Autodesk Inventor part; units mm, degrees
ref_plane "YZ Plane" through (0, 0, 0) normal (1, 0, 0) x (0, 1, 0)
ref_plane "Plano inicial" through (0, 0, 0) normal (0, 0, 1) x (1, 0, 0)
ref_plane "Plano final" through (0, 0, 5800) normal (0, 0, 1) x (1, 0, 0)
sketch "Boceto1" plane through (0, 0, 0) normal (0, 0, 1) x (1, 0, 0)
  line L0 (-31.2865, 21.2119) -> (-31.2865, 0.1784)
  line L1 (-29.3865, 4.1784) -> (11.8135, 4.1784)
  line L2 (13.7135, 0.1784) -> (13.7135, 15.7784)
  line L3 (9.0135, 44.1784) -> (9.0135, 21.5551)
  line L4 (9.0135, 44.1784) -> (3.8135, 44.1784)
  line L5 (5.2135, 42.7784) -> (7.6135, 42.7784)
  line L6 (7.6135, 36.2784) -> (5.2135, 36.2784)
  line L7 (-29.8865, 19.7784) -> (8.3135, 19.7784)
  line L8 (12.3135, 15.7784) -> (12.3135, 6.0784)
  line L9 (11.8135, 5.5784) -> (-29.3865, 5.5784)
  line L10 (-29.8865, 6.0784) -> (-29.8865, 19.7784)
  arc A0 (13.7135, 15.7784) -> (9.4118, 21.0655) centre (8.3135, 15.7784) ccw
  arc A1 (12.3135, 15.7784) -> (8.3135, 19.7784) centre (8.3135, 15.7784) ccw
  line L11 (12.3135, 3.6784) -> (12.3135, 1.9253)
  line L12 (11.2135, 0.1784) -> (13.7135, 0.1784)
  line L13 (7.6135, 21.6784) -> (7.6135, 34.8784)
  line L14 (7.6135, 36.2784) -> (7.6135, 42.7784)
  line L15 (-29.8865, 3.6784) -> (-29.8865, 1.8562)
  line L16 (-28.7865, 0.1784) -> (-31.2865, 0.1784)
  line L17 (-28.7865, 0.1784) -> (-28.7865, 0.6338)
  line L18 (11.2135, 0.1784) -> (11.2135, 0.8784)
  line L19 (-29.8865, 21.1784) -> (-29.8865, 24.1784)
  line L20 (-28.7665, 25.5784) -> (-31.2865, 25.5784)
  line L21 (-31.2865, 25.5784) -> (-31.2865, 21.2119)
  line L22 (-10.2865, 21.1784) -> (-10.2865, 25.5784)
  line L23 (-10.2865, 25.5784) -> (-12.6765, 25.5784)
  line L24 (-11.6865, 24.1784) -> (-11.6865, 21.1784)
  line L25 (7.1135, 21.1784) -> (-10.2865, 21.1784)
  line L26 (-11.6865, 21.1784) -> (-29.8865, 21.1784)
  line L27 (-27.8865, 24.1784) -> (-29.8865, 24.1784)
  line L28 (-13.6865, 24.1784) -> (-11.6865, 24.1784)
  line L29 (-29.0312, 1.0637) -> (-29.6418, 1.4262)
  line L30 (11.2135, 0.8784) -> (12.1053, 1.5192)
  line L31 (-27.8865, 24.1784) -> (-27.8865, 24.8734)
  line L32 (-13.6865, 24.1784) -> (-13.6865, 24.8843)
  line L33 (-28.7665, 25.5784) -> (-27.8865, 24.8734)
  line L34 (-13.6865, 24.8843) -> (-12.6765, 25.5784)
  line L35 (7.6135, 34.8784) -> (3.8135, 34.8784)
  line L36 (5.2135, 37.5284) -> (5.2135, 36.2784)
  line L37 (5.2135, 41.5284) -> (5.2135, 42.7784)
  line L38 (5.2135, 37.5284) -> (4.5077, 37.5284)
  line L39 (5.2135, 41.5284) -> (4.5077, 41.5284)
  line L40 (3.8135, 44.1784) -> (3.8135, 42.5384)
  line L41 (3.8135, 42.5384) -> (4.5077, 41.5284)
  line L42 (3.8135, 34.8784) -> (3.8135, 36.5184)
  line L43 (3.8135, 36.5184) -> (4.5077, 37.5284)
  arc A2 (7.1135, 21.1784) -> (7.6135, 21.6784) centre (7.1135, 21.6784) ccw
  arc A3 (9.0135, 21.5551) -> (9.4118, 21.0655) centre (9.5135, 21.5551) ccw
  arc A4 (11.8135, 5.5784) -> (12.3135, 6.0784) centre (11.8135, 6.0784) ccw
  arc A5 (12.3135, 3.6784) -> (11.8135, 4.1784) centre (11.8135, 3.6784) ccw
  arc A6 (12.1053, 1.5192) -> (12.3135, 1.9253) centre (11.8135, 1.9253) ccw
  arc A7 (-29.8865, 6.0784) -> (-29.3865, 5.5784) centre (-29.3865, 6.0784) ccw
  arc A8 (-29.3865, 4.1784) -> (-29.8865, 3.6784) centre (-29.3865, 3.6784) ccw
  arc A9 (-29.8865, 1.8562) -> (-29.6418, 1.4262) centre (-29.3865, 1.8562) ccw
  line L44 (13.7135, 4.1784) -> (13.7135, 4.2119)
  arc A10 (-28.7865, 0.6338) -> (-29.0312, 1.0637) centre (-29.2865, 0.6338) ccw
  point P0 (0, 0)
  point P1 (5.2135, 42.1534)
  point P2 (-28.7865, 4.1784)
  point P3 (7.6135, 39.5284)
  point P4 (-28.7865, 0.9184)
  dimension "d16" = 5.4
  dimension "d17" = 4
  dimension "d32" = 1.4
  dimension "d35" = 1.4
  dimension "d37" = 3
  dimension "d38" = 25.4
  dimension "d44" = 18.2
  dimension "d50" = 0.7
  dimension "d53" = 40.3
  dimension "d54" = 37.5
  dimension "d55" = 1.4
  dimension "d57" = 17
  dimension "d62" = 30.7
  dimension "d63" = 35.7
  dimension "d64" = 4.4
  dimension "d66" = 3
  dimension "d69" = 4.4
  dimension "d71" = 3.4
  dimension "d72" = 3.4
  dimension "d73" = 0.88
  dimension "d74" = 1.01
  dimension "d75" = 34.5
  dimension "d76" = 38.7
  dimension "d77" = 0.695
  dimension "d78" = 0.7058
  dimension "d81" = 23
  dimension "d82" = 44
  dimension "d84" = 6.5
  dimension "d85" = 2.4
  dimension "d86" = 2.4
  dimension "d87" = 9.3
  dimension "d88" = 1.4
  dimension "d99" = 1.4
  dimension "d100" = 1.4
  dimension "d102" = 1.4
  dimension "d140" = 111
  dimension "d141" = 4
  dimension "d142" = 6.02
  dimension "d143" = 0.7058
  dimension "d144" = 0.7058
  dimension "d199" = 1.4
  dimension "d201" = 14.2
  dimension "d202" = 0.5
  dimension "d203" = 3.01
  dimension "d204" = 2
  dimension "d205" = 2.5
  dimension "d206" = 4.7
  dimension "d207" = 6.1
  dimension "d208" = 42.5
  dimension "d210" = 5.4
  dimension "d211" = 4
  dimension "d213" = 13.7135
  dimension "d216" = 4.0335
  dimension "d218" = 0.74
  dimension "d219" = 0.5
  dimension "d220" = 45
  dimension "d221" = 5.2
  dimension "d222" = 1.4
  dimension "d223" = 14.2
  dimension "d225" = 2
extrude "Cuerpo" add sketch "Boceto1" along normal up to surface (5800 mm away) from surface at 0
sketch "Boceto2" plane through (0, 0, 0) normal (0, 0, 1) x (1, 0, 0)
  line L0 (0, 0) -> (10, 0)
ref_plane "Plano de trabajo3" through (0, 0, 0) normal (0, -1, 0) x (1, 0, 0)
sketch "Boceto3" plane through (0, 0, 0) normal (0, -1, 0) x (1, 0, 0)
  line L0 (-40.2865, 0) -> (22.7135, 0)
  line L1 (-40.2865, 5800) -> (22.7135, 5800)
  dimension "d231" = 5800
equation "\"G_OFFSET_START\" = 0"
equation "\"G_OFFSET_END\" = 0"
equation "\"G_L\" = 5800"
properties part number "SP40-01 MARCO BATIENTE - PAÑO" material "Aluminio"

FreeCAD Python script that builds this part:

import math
import FreeCAD as App
import Part
import Sketcher
Q = App.Units.Quantity

doc = App.newDocument("Part")
params = doc.addObject("Spreadsheet::Sheet", "Params")
for row, (alias, value) in enumerate([
    ("sketch1_radius", "4 mm"),
    ("sketch1_radius2", "0.5 mm"),
    ("sketch1_radius3", "5.4 mm"),
    ("sketch1_width", "2 mm"),
    ("sketch1_height", "3 mm"),
    ("pad1_length", "5800 mm"),
], start=1):
    params.set(f"A{row}", alias)
    params.set(f"B{row}", "=" + value)
    params.setAlias(f"B{row}", alias)

body = doc.addObject("PartDesign::Body", "Body")

# Sketch on XY plane
sketch1 = body.newObject("Sketcher::SketchObject", "Sketch")
sketch1.AttachmentSupport = (doc.getObject("XY_Plane"), [""])
sketch1.MapMode = "FlatFace"
sketch1.addGeometry([
    Part.LineSegment(App.Vector(-31.2865, 25.5784, 0), App.Vector(-31.2865, 0.1784, 0)),  # 0
    Part.LineSegment(App.Vector(-31.2865, 0.1784, 0), App.Vector(-28.7865, 0.1784, 0)),  # 1
    Part.LineSegment(App.Vector(-28.7865, 0.1784, 0), App.Vector(-28.7865, 0.6338, 0)),  # 2
    Part.ArcOfCircle(Part.Circle(App.Vector(-29.2865, 0.6338, 0), App.Vector(0, 0, 1), 0.5), math.radians(0), math.radians(59.295659)),  # 3
    Part.LineSegment(App.Vector(-29.0312, 1.0637, 0), App.Vector(-29.6418, 1.4262, 0)),  # 4
    Part.ArcOfCircle(Part.Circle(App.Vector(-29.3865, 1.8562, 0), App.Vector(0, 0, 1), 0.5), math.radians(180), math.radians(239.301509)),  # 5
    Part.LineSegment(App.Vector(-29.8865, 1.8562, 0), App.Vector(-29.8865, 3.6784, 0)),  # 6
    Part.ArcOfCircle(Part.Circle(App.Vector(-29.3865, 3.6784, 0), App.Vector(0, 0, 1), 0.5), math.radians(90), math.radians(180)),  # 7
    Part.LineSegment(App.Vector(-29.3865, 4.1784, 0), App.Vector(11.8135, 4.1784, 0)),  # 8
    Part.ArcOfCircle(Part.Circle(App.Vector(11.8135, 3.6784, 0), App.Vector(0, 0, 1), 0.5), math.radians(0), math.radians(90)),  # 9
    Part.LineSegment(App.Vector(12.3135, 3.6784, 0), App.Vector(12.3135, 1.9253, 0)),  # 10
    Part.ArcOfCircle(Part.Circle(App.Vector(11.8135, 1.9253, 0), App.Vector(0, 0, 1), 0.500064), math.radians(-54.301159), math.radians(0)),  # 11
    Part.LineSegment(App.Vector(12.1053, 1.5192, 0), App.Vector(11.2135, 0.8784, 0)),  # 12
    Part.LineSegment(App.Vector(11.2135, 0.8784, 0), App.Vector(11.2135, 0.1784, 0)),  # 13
    Part.LineSegment(App.Vector(11.2135, 0.1784, 0), App.Vector(13.7135, 0.1784, 0)),  # 14
    Part.LineSegment(App.Vector(13.7135, 0.1784, 0), App.Vector(13.7135, 15.7784, 0)),  # 15
    Part.ArcOfCircle(Part.Circle(App.Vector(8.3135, 15.7784, 0), App.Vector(0, 0, 1), 5.4), math.radians(0), math.radians(78.264734)),  # 16
    Part.ArcOfCircle(Part.Circle(App.Vector(9.5135, 21.5551, 0), App.Vector(0, 0, 1), 0.5), math.radians(180), math.radians(258.265363)),  # 17
    Part.LineSegment(App.Vector(9.0135, 21.5551, 0), App.Vector(9.0135, 44.1784, 0)),  # 18
    Part.LineSegment(App.Vector(9.0135, 44.1784, 0), App.Vector(3.8135, 44.1784, 0)),  # 19
    Part.LineSegment(App.Vector(3.8135, 44.1784, 0), App.Vector(3.8135, 42.5384, 0)),  # 20
    Part.LineSegment(App.Vector(3.8135, 42.5384, 0), App.Vector(4.5077, 41.5284, 0)),  # 21
    Part.LineSegment(App.Vector(4.5077, 41.5284, 0), App.Vector(5.2135, 41.5284, 0)),  # 22
    Part.LineSegment(App.Vector(5.2135, 41.5284, 0), App.Vector(5.2135, 42.7784, 0)),  # 23
    Part.LineSegment(App.Vector(5.2135, 42.7784, 0), App.Vector(7.6135, 42.7784, 0)),  # 24
    Part.LineSegment(App.Vector(7.6135, 42.7784, 0), App.Vector(7.6135, 36.2784, 0)),  # 25
    Part.LineSegment(App.Vector(7.6135, 36.2784, 0), App.Vector(5.2135, 36.2784, 0)),  # 26
    Part.LineSegment(App.Vector(5.2135, 36.2784, 0), App.Vector(5.2135, 37.5284, 0)),  # 27
    Part.LineSegment(App.Vector(5.2135, 37.5284, 0), App.Vector(4.5077, 37.5284, 0)),  # 28
    Part.LineSegment(App.Vector(4.5077, 37.5284, 0), App.Vector(3.8135, 36.5184, 0)),  # 29
    Part.LineSegment(App.Vector(3.8135, 36.5184, 0), App.Vector(3.8135, 34.8784, 0)),  # 30
    Part.LineSegment(App.Vector(3.8135, 34.8784, 0), App.Vector(7.6135, 34.8784, 0)),  # 31
    Part.LineSegment(App.Vector(7.6135, 34.8784, 0), App.Vector(7.6135, 21.6784, 0)),  # 32
    Part.ArcOfCircle(Part.Circle(App.Vector(7.1135, 21.6784, 0), App.Vector(0, 0, 1), 0.5), math.radians(-90), math.radians(0)),  # 33
    Part.LineSegment(App.Vector(7.1135, 21.1784, 0), App.Vector(-10.2865, 21.1784, 0)),  # 34
    Part.LineSegment(App.Vector(-10.2865, 21.1784, 0), App.Vector(-10.2865, 25.5784, 0)),  # 35
    Part.LineSegment(App.Vector(-10.2865, 25.5784, 0), App.Vector(-12.6765, 25.5784, 0)),  # 36
    Part.LineSegment(App.Vector(-12.6765, 25.5784, 0), App.Vector(-13.6865, 24.8843, 0)),  # 37
    Part.LineSegment(App.Vector(-13.6865, 24.8843, 0), App.Vector(-13.6865, 24.1784, 0)),  # 38
    Part.LineSegment(App.Vector(-13.6865, 24.1784, 0), App.Vector(-11.6865, 24.1784, 0)),  # 39
    Part.LineSegment(App.Vector(-11.6865, 24.1784, 0), App.Vector(-11.6865, 21.1784, 0)),  # 40
    Part.LineSegment(App.Vector(-11.6865, 21.1784, 0), App.Vector(-29.8865, 21.1784, 0)),  # 41
    Part.LineSegment(App.Vector(-29.8865, 21.1784, 0), App.Vector(-29.8865, 24.1784, 0)),  # 42
    Part.LineSegment(App.Vector(-29.8865, 24.1784, 0), App.Vector(-27.8865, 24.1784, 0)),  # 43
    Part.LineSegment(App.Vector(-27.8865, 24.1784, 0), App.Vector(-27.8865, 24.8734, 0)),  # 44
    Part.LineSegment(App.Vector(-27.8865, 24.8734, 0), App.Vector(-28.7665, 25.5784, 0)),  # 45
    Part.LineSegment(App.Vector(-28.7665, 25.5784, 0), App.Vector(-31.2865, 25.5784, 0)),  # 46
    Part.LineSegment(App.Vector(-29.8865, 6.0784, 0), App.Vector(-29.8865, 19.7784, 0)),  # 47
    Part.LineSegment(App.Vector(-29.8865, 19.7784, 0), App.Vector(8.3135, 19.7784, 0)),  # 48
    Part.ArcOfCircle(Part.Circle(App.Vector(8.3135, 15.7784, 0), App.Vector(0, 0, 1), 4), math.radians(0), math.radians(90)),  # 49
    Part.LineSegment(App.Vector(12.3135, 15.7784, 0), App.Vector(12.3135, 6.0784, 0)),  # 50
    Part.ArcOfCircle(Part.Circle(App.Vector(11.8135, 6.0784, 0), App.Vector(0, 0, 1), 0.5), math.radians(-90), math.radians(0)),  # 51
    Part.LineSegment(App.Vector(11.8135, 5.5784, 0), App.Vector(-29.3865, 5.5784, 0)),  # 52
    Part.ArcOfCircle(Part.Circle(App.Vector(-29.3865, 6.0784, 0), App.Vector(0, 0, 1), 0.5), math.radians(180), math.radians(270)),  # 53
], False)
sketch1.addConstraint([
    Sketcher.Constraint("Coincident", 0, 2, 1, 1),
    Sketcher.Constraint("Coincident", 1, 2, 2, 1),
    Sketcher.Constraint("Tangent", 2, 2, 3, 1),
    Sketcher.Constraint("Tangent", 3, 2, 4, 1),
    Sketcher.Constraint("Tangent", 4, 2, 5, 2),
    Sketcher.Constraint("Tangent", 5, 1, 6, 1),
    Sketcher.Constraint("Tangent", 6, 2, 7, 2),
    Sketcher.Constraint("Tangent", 7, 1, 8, 1),
    Sketcher.Constraint("Tangent", 8, 2, 9, 2),
    Sketcher.Constraint("Tangent", 9, 1, 10, 1),
    Sketcher.Constraint("Tangent", 10, 2, 11, 2),
    Sketcher.Constraint("Tangent", 11, 1, 12, 1),
    Sketcher.Constraint("Coincident", 12, 2, 13, 1),
    Sketcher.Constraint("Coincident", 13, 2, 14, 1),
    Sketcher.Constraint("Coincident", 14, 2, 15, 1),
    Sketcher.Constraint("Tangent", 15, 2, 16, 1),
    Sketcher.Constraint("Tangent", 16, 2, 17, 2),
    Sketcher.Constraint("Tangent", 17, 1, 18, 1),
    Sketcher.Constraint("Coincident", 18, 2, 19, 1),
    Sketcher.Constraint("Coincident", 19, 2, 20, 1),
    Sketcher.Constraint("Coincident", 20, 2, 21, 1),
    Sketcher.Constraint("Coincident", 21, 2, 22, 1),
    Sketcher.Constraint("Coincident", 22, 2, 23, 1),
    Sketcher.Constraint("Coincident", 23, 2, 24, 1),
    Sketcher.Constraint("Coincident", 24, 2, 25, 1),
    Sketcher.Constraint("Coincident", 25, 2, 26, 1),
    Sketcher.Constraint("Coincident", 26, 2, 27, 1),
    Sketcher.Constraint("Coincident", 27, 2, 28, 1),
    Sketcher.Constraint("Coincident", 28, 2, 29, 1),
    Sketcher.Constraint("Coincident", 29, 2, 30, 1),
    Sketcher.Constraint("Coincident", 30, 2, 31, 1),
    Sketcher.Constraint("Coincident", 31, 2, 32, 1),
    Sketcher.Constraint("Tangent", 32, 2, 33, 2),
    Sketcher.Constraint("Tangent", 33, 1, 34, 1),
    Sketcher.Constraint("Coincident", 34, 2, 35, 1),
    Sketcher.Constraint("Coincident", 35, 2, 36, 1),
    Sketcher.Constraint("Coincident", 36, 2, 37, 1),
    Sketcher.Constraint("Coincident", 37, 2, 38, 1),
    Sketcher.Constraint("Coincident", 38, 2, 39, 1),
    Sketcher.Constraint("Coincident", 39, 2, 40, 1),
    Sketcher.Constraint("Coincident", 40, 2, 41, 1),
    Sketcher.Constraint("Coincident", 41, 2, 42, 1),
    Sketcher.Constraint("Coincident", 42, 2, 43, 1),
    Sketcher.Constraint("Coincident", 43, 2, 44, 1),
    Sketcher.Constraint("Coincident", 44, 2, 45, 1),
    Sketcher.Constraint("Coincident", 45, 2, 46, 1),
    Sketcher.Constraint("Coincident", 46, 2, 0, 1),
    Sketcher.Constraint("Coincident", 47, 2, 48, 1),
    Sketcher.Constraint("Tangent", 48, 2, 49, 2),
    Sketcher.Constraint("Tangent", 49, 1, 50, 1),
    Sketcher.Constraint("Tangent", 50, 2, 51, 2),
    Sketcher.Constraint("Tangent", 51, 1, 52, 1),
    Sketcher.Constraint("Tangent", 52, 2, 53, 2),
    Sketcher.Constraint("Tangent", 53, 1, 47, 1),
    Sketcher.Constraint("Vertical", 0),
    Sketcher.Constraint("Horizontal", 1),
    Sketcher.Constraint("Vertical", 2),
    Sketcher.Constraint("Vertical", 6),
    Sketcher.Constraint("Horizontal", 8),
    Sketcher.Constraint("Vertical", 10),
    Sketcher.Constraint("Vertical", 13),
    Sketcher.Constraint("Horizontal", 14),
    Sketcher.Constraint("Vertical", 15),
    Sketcher.Constraint("Vertical", 18),
    Sketcher.Constraint("Horizontal", 19),
    Sketcher.Constraint("Vertical", 20),
    Sketcher.Constraint("Horizontal", 22),
    Sketcher.Constraint("Vertical", 23),
    Sketcher.Constraint("Horizontal", 24),
    Sketcher.Constraint("Vertical", 25),
    Sketcher.Constraint("Horizontal", 26),
    Sketcher.Constraint("Vertical", 27),
    Sketcher.Constraint("Horizontal", 28),
    Sketcher.Constraint("Vertical", 30),
    Sketcher.Constraint("Horizontal", 31),
    Sketcher.Constraint("Vertical", 32),
    Sketcher.Constraint("Horizontal", 34),
    Sketcher.Constraint("Vertical", 35),
    Sketcher.Constraint("Horizontal", 36),
    Sketcher.Constraint("Vertical", 38),
    Sketcher.Constraint("Horizontal", 39),
    Sketcher.Constraint("Vertical", 40),
    Sketcher.Constraint("Horizontal", 41),
    Sketcher.Constraint("Vertical", 42),
    Sketcher.Constraint("Horizontal", 43),
    Sketcher.Constraint("Vertical", 44),
    Sketcher.Constraint("Horizontal", 46),
    Sketcher.Constraint("Vertical", 47),
    Sketcher.Constraint("Horizontal", 48),
    Sketcher.Constraint("Vertical", 50),
    Sketcher.Constraint("Horizontal", 52),
    Sketcher.Constraint("Coincident", 49, 3, 16, 3),
    Sketcher.Constraint("Equal", 3, 5),
    Sketcher.Constraint("Equal", 5, 7),
    Sketcher.Constraint("Equal", 7, 9),
    Sketcher.Constraint("Equal", 9, 11),
    Sketcher.Constraint("Equal", 11, 17),
    Sketcher.Constraint("Equal", 17, 33),
    Sketcher.Constraint("Equal", 33, 51),
    Sketcher.Constraint("Equal", 51, 53),
    Sketcher.Constraint("Perpendicular", 21, 37),
    Sketcher.Constraint("Horizontal", 1, 2, 13, 2),
    Sketcher.Constraint("Horizontal", 34, 2, 40, 2),
    Sketcher.Constraint("Horizontal", 39, 2, 42, 2),
    Sketcher.Constraint("Horizontal", 36, 2, 45, 2),
    Sketcher.Constraint("Vertical", 11, 3, 51, 3),
    Sketcher.Constraint("Vertical", 7, 3, 53, 3),
    Sketcher.Constraint("Vertical", 23, 2, 26, 2),
    Sketcher.Constraint("Vertical", 21, 2, 28, 2),
    Sketcher.Constraint("Vertical", 20, 2, 29, 2),
    Sketcher.Constraint("Vertical", 25, 2, 31, 2),
    Sketcher.Constraint("Vertical", 6, 2, 41, 2),
    Sketcher.Constraint("Equal", 1, 14),
    Sketcher.Constraint("Equal", 39, 43),
    Sketcher.Constraint("Equal", 23, 27),
    Sketcher.Constraint("Equal", 20, 30),
    Sketcher.Constraint("Equal", 28, 38),
    Sketcher.Constraint("Equal", 21, 29),
    Sketcher.Constraint("Equal", 29, 37),
    Sketcher.Constraint("Radius", 49, 4.0),
    Sketcher.Constraint("Radius", 3, 0.5),
    Sketcher.Constraint("Radius", 16, 5.4),
    Sketcher.Constraint("DistanceX", 39, 1, 39, 2, 2.0),
    Sketcher.Constraint("DistanceY", 40, 2, 40, 1, 3.0),
    Sketcher.Constraint("DistanceX", 1, 1, 1, 2, 2.5),
    Sketcher.Constraint("DistanceX", 19, 2, 19, 1, 5.2),
    Sketcher.Constraint("DistanceX", 24, 1, 24, 2, 2.4),
    Sketcher.Constraint("DistanceX", 41, 2, 41, 1, 18.2),
    Sketcher.Constraint("DistanceY", 0, 2, 0, 1, 25.4),
    Sketcher.Constraint("DistanceY", 13, 2, 13, 1, 0.7),
    Sketcher.Constraint("DistanceY", 25, 2, 25, 1, 6.5),
    Sketcher.Constraint("DistanceY", 35, 1, 35, 2, 4.4),
    Sketcher.Constraint("DistanceY", 38, 2, 38, 1, 0.706),
    Sketcher.Constraint("DistanceY", 44, 1, 44, 2, 0.695),
    Sketcher.Constraint("DistanceX", 8, 1, 8, 2, 41.2),
    Sketcher.Constraint("DistanceX", 34, 2, 34, 1, 17.4),
    Sketcher.Constraint("DistanceY", 15, 1, 15, 2, 15.6),
    Sketcher.Constraint("DistanceY", 32, 2, 32, 1, 13.2),
    Sketcher.Constraint("DistanceY", 47, 1, 47, 2, 13.7),
    Sketcher.Constraint("Angle", 12, Q("-144.301 deg")),
    Sketcher.Constraint("Angle", 45, Q("141.3005 deg")),
    Sketcher.Constraint("DistanceX", 36, 2, 36, 1, 2.39),
    Sketcher.Constraint("DistanceX", 46, 2, 46, 1, 2.52),
    Sketcher.Constraint("DistanceY", 20, 2, 20, 1, 1.64),
    Sketcher.Constraint("DistanceY", 23, 1, 23, 2, 1.25),
    Sketcher.Constraint("DistanceX", -1, 1, 14, 2, 13.7135),
    Sketcher.Constraint("Distance", 4, 0.71),
    Sketcher.Constraint("DistanceY", 10, 2, 10, 1, 1.753),
    Sketcher.Constraint("DistanceY", 2, 1, 2, 2, 0.4554),
    Sketcher.Constraint("DistanceY", 18, 1, 18, 2, 22.6233),
    Sketcher.Constraint("DistanceY", -1, 1, 17, 3, 21.555),
])
sketch1.setExpression("Constraints[119]", "Params.sketch1_radius")
sketch1.setExpression("Constraints[120]", "Params.sketch1_radius2")
sketch1.setExpression("Constraints[121]", "Params.sketch1_radius3")
sketch1.setExpression("Constraints[122]", "Params.sketch1_width")
sketch1.setExpression("Constraints[123]", "Params.sketch1_height")
pad1 = body.newObject("PartDesign::Pad", "Pad")
pad1.Profile = sketch1
pad1.setExpression("Length", "Params.pad1_length")

doc.recompute()
